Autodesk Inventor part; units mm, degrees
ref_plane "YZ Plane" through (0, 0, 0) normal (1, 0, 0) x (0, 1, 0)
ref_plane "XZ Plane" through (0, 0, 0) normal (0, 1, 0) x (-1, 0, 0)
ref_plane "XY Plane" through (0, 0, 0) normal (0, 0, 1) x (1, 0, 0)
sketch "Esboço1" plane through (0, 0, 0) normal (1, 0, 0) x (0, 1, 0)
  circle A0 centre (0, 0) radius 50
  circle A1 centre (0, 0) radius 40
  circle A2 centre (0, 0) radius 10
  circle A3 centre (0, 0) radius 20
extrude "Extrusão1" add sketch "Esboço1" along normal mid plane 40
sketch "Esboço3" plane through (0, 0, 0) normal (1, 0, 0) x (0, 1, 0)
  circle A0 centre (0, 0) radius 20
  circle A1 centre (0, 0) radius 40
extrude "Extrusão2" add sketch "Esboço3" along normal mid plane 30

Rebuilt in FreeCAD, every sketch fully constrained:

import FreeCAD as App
import Part
import Sketcher

doc = App.newDocument("Part")
body = doc.addObject("PartDesign::Body", "Body")
body.AllowCompound = True

# Sketch on YZ plane
sketch1 = body.newObject("Sketcher::SketchObject", "Sketch")
sketch1.AttachmentSupport = (doc.getObject("YZ_Plane"), [""])
sketch1.MapMode = "FlatFace"
sketch1.addGeometry([
    Part.Circle(App.Vector(0, 0, 0), App.Vector(0, 0, 1), 50),
    Part.Circle(App.Vector(0, 0, 0), App.Vector(0, 0, 1), 40),
    Part.Circle(App.Vector(0, 0, 0), App.Vector(0, 0, 1), 20),
    Part.Circle(App.Vector(0, 0, 0), App.Vector(0, 0, 1), 10),
], False)
sketch1.addConstraint([
    Sketcher.Constraint("Coincident", 0, 3, -1, 1),
    Sketcher.Constraint("Coincident", 1, 3, -1, 1),
    Sketcher.Constraint("Coincident", 2, 3, -1, 1),
    Sketcher.Constraint("Coincident", 3, 3, -1, 1),
    Sketcher.Constraint("Diameter", 0, 100.0),
    Sketcher.Constraint("Diameter", 1, 80.0),
    Sketcher.Constraint("Diameter", 2, 40.0),
    Sketcher.Constraint("Diameter", 3, 20.0),
])
pad1 = body.newObject("PartDesign::Pad", "Pad")
pad1.Profile = sketch1
pad1.Length = 40
pad1.Midplane = True

# Sketch on YZ plane
sketch2 = body.newObject("Sketcher::SketchObject", "Sketch001")
sketch2.AttachmentSupport = (doc.getObject("YZ_Plane"), [""])
sketch2.MapMode = "FlatFace"
sketch2.addGeometry([
    Part.Circle(App.Vector(0, 0, 0), App.Vector(0, 0, 1), 40),
    Part.Circle(App.Vector(0, 0, 0), App.Vector(0, 0, 1), 20),
], False)
sketch2.addConstraint([
    Sketcher.Constraint("Coincident", 0, 3, -1, 1),
    Sketcher.Constraint("Coincident", 1, 3, -1, 1),
    Sketcher.Constraint("Diameter", 0, 80.0),
    Sketcher.Constraint("Diameter", 1, 40.0),
])
pad2 = body.newObject("PartDesign::Pad", "Pad001")
pad2.Profile = sketch2
pad2.Length = 30
pad2.Midplane = True

doc.recompute()
